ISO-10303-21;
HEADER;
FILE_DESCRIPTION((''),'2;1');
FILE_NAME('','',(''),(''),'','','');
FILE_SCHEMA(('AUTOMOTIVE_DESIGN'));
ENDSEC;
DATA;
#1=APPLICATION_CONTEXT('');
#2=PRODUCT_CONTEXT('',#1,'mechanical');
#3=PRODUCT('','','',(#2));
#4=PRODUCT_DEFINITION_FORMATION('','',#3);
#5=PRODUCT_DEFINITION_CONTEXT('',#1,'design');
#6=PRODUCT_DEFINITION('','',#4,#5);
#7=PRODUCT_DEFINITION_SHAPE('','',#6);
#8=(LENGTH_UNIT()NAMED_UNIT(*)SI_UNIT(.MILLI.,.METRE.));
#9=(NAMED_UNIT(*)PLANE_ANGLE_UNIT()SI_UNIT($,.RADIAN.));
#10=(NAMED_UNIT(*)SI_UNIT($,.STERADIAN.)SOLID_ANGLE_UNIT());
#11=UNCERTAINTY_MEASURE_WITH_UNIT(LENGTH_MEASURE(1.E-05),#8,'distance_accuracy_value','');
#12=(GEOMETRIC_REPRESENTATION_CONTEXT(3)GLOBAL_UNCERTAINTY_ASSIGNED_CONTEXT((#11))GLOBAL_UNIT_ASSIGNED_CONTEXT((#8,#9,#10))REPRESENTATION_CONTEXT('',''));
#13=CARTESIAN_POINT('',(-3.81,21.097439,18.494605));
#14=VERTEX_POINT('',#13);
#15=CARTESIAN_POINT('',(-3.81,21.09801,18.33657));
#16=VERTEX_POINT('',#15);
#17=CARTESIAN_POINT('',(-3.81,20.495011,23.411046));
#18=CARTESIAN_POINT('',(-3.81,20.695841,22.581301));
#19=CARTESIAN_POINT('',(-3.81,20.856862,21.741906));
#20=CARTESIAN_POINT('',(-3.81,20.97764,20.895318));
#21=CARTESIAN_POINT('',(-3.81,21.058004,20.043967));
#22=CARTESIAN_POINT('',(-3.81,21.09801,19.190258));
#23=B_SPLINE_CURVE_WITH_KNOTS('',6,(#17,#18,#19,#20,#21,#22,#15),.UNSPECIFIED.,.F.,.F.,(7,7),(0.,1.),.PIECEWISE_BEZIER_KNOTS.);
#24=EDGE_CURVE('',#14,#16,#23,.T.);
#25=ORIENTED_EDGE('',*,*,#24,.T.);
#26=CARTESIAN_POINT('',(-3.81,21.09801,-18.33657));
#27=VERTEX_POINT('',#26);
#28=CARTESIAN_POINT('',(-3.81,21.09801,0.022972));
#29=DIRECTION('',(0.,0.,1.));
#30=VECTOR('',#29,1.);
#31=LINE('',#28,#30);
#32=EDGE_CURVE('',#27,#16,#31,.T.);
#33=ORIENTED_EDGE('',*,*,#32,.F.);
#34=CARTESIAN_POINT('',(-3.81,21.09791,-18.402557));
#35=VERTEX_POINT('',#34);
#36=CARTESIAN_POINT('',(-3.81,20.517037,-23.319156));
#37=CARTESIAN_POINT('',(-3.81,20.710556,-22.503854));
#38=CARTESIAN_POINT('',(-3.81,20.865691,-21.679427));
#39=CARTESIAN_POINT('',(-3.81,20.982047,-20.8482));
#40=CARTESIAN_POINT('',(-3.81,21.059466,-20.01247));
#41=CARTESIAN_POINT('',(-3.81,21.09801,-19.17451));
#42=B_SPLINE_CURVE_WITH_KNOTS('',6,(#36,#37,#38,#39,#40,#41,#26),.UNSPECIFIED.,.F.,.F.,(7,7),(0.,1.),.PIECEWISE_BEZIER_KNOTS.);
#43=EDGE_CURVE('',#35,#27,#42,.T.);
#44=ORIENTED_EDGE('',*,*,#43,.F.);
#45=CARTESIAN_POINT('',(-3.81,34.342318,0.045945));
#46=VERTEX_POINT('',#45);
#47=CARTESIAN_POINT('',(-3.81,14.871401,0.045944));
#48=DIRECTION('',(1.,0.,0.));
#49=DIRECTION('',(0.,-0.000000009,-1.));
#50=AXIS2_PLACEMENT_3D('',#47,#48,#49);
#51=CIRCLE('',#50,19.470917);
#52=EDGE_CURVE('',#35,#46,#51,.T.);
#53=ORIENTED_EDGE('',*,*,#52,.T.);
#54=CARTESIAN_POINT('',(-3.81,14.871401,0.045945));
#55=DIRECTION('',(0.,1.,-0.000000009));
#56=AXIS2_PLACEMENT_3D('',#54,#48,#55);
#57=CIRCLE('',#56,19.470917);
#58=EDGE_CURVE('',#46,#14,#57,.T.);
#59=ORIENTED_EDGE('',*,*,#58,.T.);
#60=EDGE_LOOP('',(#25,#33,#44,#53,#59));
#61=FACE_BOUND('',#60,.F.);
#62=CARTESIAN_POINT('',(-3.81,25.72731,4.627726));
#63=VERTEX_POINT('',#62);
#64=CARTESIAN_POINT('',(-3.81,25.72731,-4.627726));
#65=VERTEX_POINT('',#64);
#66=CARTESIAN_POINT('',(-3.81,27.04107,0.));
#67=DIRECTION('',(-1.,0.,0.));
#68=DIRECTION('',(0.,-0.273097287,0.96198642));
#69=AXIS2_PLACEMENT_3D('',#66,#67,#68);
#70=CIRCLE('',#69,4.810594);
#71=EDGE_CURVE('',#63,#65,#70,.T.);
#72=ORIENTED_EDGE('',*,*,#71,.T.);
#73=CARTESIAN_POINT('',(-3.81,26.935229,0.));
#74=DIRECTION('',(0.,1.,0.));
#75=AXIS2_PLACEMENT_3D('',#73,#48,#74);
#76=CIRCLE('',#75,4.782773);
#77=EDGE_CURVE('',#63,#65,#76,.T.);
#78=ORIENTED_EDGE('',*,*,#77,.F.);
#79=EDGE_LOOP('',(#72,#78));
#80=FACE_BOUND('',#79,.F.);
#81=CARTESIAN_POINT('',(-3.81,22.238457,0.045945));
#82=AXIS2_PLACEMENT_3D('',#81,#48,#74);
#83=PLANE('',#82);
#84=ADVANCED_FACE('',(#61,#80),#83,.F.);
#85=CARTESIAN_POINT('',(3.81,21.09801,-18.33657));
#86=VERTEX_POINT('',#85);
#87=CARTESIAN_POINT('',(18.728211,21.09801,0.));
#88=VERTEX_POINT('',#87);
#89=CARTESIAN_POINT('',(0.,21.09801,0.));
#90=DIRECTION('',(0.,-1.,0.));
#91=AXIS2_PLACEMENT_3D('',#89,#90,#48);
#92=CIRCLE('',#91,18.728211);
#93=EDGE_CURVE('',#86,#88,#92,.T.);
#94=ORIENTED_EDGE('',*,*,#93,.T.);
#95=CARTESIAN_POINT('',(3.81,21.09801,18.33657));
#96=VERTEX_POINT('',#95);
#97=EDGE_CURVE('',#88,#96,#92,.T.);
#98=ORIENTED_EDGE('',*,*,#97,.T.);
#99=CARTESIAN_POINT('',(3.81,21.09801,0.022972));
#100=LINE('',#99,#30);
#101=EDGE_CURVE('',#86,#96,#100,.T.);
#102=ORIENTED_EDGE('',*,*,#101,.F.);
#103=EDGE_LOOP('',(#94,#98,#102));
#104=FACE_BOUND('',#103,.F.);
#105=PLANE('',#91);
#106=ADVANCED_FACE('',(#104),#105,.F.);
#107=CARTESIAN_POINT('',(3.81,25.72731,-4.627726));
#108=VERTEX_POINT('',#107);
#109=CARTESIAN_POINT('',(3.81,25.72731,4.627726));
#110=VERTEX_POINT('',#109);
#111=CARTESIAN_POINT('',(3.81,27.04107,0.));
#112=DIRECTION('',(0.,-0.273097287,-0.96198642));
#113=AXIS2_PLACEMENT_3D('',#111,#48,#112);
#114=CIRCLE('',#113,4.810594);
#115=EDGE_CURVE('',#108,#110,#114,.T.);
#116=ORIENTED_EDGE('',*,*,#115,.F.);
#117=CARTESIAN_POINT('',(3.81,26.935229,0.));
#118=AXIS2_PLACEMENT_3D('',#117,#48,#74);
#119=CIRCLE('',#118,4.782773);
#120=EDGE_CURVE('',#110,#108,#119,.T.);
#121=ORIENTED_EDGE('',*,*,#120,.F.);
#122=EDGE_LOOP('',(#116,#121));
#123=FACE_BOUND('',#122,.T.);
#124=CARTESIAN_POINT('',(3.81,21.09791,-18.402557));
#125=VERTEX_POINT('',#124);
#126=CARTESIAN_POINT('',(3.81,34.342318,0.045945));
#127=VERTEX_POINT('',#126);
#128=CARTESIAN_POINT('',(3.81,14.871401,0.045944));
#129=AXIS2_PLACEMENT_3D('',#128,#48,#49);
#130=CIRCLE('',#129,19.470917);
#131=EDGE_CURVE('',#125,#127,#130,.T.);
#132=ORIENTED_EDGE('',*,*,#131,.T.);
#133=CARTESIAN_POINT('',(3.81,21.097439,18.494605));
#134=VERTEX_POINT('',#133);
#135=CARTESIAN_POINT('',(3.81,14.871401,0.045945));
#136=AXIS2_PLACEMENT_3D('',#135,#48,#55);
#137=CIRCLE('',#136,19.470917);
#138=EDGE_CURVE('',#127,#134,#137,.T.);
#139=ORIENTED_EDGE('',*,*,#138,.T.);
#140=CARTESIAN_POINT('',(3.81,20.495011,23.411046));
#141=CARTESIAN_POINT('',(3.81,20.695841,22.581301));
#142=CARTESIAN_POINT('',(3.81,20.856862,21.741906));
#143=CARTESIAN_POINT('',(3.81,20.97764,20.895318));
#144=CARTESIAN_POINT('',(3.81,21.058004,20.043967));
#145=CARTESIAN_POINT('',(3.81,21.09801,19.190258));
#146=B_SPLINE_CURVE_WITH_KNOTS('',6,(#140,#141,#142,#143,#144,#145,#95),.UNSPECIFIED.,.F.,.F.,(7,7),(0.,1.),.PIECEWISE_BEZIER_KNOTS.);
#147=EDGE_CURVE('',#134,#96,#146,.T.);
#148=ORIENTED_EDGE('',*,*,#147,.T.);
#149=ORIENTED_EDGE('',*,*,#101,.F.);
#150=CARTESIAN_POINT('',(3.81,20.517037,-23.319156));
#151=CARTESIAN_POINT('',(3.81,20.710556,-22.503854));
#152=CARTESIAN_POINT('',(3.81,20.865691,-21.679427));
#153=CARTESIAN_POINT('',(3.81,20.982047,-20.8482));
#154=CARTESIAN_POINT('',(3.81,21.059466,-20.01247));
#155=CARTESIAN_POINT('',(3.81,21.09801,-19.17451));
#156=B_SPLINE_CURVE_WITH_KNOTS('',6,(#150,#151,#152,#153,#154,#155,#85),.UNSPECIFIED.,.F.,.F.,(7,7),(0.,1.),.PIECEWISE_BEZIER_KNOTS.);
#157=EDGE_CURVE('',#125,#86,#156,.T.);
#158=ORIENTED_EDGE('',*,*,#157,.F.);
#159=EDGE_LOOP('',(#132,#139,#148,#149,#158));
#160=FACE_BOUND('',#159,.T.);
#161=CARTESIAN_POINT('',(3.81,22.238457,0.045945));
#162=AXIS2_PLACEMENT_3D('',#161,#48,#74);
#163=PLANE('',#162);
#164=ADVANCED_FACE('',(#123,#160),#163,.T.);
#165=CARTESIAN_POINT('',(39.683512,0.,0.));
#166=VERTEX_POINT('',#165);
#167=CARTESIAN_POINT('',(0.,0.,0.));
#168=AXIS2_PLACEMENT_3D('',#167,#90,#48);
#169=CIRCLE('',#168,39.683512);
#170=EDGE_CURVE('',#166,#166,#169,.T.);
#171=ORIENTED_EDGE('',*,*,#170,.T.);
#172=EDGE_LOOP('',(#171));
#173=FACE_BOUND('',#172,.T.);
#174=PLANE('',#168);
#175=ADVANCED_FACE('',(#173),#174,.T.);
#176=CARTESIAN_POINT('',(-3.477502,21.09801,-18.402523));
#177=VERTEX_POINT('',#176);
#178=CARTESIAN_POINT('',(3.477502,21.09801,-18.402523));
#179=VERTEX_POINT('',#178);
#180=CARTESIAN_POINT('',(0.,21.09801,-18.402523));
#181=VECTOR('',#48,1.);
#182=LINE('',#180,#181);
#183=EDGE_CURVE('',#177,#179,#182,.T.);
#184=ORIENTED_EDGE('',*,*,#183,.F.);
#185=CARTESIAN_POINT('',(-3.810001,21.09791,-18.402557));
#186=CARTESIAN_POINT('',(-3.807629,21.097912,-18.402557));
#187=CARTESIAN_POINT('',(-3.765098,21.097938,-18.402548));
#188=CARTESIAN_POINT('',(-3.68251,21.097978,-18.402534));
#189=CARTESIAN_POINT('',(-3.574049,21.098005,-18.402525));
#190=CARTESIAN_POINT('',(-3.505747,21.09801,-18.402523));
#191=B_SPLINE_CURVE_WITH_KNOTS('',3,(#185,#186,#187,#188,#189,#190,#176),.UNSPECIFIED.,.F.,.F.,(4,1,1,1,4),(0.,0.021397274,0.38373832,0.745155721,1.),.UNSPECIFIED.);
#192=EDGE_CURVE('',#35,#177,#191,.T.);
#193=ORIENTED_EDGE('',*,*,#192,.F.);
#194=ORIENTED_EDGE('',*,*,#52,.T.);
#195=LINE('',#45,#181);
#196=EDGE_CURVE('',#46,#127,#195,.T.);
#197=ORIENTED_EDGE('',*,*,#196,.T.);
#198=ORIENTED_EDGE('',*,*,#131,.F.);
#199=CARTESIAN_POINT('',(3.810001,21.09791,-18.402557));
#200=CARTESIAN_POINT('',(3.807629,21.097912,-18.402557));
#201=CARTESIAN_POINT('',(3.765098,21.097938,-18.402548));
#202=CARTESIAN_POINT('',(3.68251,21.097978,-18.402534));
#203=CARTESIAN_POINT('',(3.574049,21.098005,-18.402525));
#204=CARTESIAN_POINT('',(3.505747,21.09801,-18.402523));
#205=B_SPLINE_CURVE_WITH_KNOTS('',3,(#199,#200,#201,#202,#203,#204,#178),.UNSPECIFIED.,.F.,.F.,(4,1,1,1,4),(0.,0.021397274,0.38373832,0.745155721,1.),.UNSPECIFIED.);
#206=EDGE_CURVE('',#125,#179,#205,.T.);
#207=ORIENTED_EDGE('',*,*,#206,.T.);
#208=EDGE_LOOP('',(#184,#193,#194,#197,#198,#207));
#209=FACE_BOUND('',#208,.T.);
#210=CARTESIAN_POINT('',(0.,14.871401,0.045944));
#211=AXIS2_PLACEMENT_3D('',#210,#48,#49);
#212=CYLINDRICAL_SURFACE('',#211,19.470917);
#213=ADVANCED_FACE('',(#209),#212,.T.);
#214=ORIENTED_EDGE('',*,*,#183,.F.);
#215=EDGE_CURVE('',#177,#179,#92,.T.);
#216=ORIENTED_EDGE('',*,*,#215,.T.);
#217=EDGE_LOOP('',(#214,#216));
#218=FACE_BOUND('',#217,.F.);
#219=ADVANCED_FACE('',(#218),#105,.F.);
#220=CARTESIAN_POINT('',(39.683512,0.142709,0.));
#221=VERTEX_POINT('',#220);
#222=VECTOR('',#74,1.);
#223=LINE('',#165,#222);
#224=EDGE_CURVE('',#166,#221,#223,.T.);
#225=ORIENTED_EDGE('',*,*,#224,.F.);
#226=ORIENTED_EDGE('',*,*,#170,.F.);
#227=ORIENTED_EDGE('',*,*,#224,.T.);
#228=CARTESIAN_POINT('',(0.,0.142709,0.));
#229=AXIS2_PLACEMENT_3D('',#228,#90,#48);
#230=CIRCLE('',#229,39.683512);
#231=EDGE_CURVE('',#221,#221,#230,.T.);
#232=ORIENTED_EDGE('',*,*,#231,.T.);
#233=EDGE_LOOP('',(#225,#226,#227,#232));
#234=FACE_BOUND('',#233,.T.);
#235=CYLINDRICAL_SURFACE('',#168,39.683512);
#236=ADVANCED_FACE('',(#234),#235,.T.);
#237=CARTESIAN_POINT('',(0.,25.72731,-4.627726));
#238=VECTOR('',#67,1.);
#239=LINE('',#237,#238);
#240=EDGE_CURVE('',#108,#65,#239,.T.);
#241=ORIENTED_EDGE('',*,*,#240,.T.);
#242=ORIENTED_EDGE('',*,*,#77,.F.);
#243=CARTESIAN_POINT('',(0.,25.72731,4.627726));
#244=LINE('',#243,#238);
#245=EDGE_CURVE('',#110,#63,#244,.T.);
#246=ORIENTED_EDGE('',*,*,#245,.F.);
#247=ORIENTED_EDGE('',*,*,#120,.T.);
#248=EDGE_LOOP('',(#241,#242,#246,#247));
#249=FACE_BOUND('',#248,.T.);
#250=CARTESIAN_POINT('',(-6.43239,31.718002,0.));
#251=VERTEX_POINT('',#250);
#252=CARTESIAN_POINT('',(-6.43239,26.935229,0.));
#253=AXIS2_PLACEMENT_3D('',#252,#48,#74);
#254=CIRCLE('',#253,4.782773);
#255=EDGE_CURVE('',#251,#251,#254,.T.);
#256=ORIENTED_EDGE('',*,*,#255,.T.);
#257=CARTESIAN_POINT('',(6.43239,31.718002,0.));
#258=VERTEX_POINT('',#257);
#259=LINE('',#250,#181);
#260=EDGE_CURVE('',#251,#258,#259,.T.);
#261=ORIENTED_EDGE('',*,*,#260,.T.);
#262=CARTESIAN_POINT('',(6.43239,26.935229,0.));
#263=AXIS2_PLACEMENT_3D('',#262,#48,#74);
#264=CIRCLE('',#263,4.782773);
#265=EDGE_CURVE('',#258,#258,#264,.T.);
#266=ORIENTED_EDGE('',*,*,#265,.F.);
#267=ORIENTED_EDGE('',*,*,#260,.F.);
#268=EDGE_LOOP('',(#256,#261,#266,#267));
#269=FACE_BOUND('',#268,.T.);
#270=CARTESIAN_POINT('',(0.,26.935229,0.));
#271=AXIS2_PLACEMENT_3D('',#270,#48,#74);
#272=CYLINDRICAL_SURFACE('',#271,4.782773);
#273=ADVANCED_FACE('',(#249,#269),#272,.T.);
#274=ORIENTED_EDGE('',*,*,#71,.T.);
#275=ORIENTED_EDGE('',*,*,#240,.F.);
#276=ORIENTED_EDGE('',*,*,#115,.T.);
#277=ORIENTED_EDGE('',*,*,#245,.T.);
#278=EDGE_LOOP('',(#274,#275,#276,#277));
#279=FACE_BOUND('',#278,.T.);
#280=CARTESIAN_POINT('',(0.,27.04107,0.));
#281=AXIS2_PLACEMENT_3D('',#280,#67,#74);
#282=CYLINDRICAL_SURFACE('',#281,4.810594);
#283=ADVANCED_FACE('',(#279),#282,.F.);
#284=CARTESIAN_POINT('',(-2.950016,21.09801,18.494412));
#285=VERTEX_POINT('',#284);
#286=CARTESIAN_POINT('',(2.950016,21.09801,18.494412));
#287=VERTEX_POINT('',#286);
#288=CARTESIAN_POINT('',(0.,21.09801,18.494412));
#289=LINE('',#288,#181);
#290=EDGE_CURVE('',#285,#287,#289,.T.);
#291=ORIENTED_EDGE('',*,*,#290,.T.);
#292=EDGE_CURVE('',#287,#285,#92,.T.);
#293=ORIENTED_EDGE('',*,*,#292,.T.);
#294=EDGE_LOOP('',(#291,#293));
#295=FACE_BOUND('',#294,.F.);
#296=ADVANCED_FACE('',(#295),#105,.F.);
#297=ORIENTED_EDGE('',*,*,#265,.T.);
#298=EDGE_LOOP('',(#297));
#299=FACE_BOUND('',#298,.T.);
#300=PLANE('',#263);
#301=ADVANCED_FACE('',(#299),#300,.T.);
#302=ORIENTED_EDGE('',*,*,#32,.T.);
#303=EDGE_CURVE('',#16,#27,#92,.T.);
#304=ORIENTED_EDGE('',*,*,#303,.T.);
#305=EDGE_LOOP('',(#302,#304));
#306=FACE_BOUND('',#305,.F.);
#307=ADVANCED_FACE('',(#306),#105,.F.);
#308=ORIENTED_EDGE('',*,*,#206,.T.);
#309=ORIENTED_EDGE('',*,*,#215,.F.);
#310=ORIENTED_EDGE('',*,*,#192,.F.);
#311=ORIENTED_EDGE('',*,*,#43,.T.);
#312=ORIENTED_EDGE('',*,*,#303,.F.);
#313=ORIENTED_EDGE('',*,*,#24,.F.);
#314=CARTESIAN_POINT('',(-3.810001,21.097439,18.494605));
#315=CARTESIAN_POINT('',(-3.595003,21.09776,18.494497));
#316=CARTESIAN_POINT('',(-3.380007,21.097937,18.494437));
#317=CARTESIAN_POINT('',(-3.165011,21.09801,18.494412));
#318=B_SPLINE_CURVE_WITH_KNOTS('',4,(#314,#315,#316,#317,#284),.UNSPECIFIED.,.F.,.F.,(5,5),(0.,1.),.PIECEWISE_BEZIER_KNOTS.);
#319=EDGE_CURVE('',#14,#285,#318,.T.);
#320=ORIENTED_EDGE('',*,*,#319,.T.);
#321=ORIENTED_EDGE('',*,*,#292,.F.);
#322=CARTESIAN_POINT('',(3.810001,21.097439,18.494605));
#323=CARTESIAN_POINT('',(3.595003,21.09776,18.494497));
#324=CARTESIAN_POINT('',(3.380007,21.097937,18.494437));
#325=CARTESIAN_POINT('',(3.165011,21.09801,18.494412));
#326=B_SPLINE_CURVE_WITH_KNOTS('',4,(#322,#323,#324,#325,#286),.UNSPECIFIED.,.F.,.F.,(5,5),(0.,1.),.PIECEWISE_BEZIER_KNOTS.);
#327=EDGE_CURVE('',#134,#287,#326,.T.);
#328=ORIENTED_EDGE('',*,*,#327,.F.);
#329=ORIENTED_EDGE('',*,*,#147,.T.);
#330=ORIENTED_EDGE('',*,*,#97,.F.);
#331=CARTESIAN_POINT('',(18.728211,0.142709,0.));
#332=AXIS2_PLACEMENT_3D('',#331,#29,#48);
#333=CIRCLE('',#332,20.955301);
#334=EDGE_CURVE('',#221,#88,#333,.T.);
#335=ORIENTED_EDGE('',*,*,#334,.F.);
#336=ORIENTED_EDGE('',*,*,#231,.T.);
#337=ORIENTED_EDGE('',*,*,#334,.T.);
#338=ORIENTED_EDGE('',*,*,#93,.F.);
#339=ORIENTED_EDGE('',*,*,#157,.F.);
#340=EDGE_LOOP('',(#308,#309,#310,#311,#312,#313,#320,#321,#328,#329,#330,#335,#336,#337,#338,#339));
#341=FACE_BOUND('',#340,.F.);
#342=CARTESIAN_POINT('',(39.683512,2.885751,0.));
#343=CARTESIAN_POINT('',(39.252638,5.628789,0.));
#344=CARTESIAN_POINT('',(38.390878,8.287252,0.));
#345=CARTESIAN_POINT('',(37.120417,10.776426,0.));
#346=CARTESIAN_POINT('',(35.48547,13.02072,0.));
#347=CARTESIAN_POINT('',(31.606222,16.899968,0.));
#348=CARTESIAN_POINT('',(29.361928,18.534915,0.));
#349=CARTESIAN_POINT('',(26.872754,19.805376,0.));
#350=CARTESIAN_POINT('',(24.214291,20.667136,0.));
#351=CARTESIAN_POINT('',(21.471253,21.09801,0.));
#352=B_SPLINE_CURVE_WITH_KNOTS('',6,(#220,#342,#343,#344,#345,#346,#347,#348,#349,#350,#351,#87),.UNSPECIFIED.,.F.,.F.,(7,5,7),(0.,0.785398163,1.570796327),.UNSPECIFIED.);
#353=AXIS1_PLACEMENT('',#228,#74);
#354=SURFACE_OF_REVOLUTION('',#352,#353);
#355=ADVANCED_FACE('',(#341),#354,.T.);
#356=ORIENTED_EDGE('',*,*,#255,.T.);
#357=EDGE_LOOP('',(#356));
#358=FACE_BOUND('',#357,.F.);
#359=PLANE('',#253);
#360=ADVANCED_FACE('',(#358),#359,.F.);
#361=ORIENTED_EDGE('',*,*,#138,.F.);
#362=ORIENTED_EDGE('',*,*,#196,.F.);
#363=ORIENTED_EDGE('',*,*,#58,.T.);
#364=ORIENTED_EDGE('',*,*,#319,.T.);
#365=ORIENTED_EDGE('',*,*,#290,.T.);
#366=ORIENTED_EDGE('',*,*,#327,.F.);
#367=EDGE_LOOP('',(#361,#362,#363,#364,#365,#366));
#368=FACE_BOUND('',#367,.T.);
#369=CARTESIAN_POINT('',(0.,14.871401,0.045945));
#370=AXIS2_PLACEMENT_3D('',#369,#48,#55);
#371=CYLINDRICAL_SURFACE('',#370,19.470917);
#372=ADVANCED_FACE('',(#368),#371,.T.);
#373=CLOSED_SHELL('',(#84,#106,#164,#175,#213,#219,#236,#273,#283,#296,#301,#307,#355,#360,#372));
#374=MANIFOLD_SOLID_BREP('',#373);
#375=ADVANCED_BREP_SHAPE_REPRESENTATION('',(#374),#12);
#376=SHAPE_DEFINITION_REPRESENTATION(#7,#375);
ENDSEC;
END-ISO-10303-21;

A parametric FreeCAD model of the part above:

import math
import FreeCAD as App
import Part
import Sketcher
from FreeCAD import Vector
Q = App.Units.Quantity


def edges_at(feature, points):
    """Names of the edges that pass closest to the given points."""
    edges = feature.Shape.Edges
    near = lambda p: min(range(len(edges)), key=lambda i: edges[i].distToShape(Part.Vertex(*p))[0])
    return sorted({f"Edge{near(p) + 1}" for p in points})

doc = App.newDocument("Part")
body = doc.addObject("PartDesign::Body", "Body")

sketch1 = body.newObject("Sketcher::SketchObject", "Sketch")
sketch1.AttachmentSupport = (doc.getObject("XZ_Plane"), [""])
sketch1.MapMode = "FlatFace"
sketch1.addGeometry(Part.Circle(Vector(0, 0, 0), Vector(0, 0, 1), 40), False)
sketch1.addConstraint(Sketcher.Constraint("Coincident", 0, 3, -1, 1))
sketch1.addConstraint(Sketcher.Constraint("Diameter", 0, Q("79.367024 mm")))
pad1 = body.newObject("PartDesign::Pad", "Pad")
pad1.Profile = sketch1
pad1.Length = 21.09801
pad1.Reversed = True
doc.recompute()

fillet = body.newObject("PartDesign::Fillet", "Fillet")
fillet.Base = (pad1, edges_at(pad1, [(-39.684, 21.098, 0)]))
fillet.Radius = 20.955301

sketch2 = body.newObject("Sketcher::SketchObject", "Sketch001")
sketch2.AttachmentSupport = (doc.getObject("YZ_Plane"), [""])
sketch2.MapMode = "FlatFace"
sketch2.addGeometry(Part.ArcOfCircle(Part.Circle(Vector(14.9, 0, 0), Vector(0, 0, 1), 19.5), math.radians(-90), math.radians(0)), False)
sketch2.addGeometry(Part.ArcOfCircle(Part.Circle(Vector(14.9, 0, 0), Vector(0, 0, 1), 19.5), math.radians(0), math.radians(90)), False)
sketch2.addGeometry(Part.LineSegment(Vector(14.9, 19.5, 0), Vector(14.9, -19.4, 0)), False)
sketch2.addGeometry(Part.Circle(Vector(27, 0, 0), Vector(0, 0, 1), 4.8), False)
sketch2.addConstraint(Sketcher.Constraint("Tangent", 0, 2, 1, 1))
sketch2.addConstraint(Sketcher.Constraint("Coincident", 1, 2, 2, 1))
sketch2.addConstraint(Sketcher.Constraint("Coincident", 2, 2, 0, 1))
sketch2.addConstraint(Sketcher.Constraint("Vertical", 2))
sketch2.addConstraint(Sketcher.Constraint("Equal", 0, 1))
sketch2.addConstraint(Sketcher.Constraint("PointOnObject", 3, 3, -1))
sketch2.addConstraint(Sketcher.Constraint("Horizontal", 1, 3, 0, 2))
sketch2.addConstraint(Sketcher.Constraint("Vertical", 0, 3, 1, 2))
sketch2.addConstraint(Sketcher.Constraint("Diameter", 3, Q("9.621188 mm")))
sketch2.addConstraint(Sketcher.Constraint("Radius", 0, Q("19.470917 mm")))
sketch2.addConstraint(Sketcher.Constraint("DistanceX", -1, 1, 0, 3, Q("14.871401 mm")))
sketch2.addConstraint(Sketcher.Constraint("DistanceX", -1, 1, 3, 3, Q("27.04107 mm")))
sketch2.addConstraint(Sketcher.Constraint("DistanceY", -1, 1, 1, 2, Q("19.516862 mm")))
pad2 = body.newObject("PartDesign::Pad", "Pad001")
pad2.Profile = sketch2
pad2.Length = Q("0.3 in")
pad2.Midplane = True

sketch3 = body.newObject("Sketcher::SketchObject", "Sketch002")
sketch3.AttachmentSupport = (doc.getObject("YZ_Plane"), [""])
sketch3.MapMode = "FlatFace"
sketch3.addGeometry(Part.Circle(Vector(26.9, 0, 0), Vector(0, 0, 1), 4.8), False)
sketch3.addConstraint(Sketcher.Constraint("PointOnObject", 0, 3, -1))
sketch3.addConstraint(Sketcher.Constraint("Diameter", 0, Q("9.565546 mm")))
sketch3.addConstraint(Sketcher.Constraint("DistanceX", -1, 1, 0, 3, Q("26.935229 mm")))
pad3 = body.newObject("PartDesign::Pad", "Pad002")
pad3.Profile = sketch3
pad3.Length = 12.86478
pad3.Midplane = True

doc.recompute()
